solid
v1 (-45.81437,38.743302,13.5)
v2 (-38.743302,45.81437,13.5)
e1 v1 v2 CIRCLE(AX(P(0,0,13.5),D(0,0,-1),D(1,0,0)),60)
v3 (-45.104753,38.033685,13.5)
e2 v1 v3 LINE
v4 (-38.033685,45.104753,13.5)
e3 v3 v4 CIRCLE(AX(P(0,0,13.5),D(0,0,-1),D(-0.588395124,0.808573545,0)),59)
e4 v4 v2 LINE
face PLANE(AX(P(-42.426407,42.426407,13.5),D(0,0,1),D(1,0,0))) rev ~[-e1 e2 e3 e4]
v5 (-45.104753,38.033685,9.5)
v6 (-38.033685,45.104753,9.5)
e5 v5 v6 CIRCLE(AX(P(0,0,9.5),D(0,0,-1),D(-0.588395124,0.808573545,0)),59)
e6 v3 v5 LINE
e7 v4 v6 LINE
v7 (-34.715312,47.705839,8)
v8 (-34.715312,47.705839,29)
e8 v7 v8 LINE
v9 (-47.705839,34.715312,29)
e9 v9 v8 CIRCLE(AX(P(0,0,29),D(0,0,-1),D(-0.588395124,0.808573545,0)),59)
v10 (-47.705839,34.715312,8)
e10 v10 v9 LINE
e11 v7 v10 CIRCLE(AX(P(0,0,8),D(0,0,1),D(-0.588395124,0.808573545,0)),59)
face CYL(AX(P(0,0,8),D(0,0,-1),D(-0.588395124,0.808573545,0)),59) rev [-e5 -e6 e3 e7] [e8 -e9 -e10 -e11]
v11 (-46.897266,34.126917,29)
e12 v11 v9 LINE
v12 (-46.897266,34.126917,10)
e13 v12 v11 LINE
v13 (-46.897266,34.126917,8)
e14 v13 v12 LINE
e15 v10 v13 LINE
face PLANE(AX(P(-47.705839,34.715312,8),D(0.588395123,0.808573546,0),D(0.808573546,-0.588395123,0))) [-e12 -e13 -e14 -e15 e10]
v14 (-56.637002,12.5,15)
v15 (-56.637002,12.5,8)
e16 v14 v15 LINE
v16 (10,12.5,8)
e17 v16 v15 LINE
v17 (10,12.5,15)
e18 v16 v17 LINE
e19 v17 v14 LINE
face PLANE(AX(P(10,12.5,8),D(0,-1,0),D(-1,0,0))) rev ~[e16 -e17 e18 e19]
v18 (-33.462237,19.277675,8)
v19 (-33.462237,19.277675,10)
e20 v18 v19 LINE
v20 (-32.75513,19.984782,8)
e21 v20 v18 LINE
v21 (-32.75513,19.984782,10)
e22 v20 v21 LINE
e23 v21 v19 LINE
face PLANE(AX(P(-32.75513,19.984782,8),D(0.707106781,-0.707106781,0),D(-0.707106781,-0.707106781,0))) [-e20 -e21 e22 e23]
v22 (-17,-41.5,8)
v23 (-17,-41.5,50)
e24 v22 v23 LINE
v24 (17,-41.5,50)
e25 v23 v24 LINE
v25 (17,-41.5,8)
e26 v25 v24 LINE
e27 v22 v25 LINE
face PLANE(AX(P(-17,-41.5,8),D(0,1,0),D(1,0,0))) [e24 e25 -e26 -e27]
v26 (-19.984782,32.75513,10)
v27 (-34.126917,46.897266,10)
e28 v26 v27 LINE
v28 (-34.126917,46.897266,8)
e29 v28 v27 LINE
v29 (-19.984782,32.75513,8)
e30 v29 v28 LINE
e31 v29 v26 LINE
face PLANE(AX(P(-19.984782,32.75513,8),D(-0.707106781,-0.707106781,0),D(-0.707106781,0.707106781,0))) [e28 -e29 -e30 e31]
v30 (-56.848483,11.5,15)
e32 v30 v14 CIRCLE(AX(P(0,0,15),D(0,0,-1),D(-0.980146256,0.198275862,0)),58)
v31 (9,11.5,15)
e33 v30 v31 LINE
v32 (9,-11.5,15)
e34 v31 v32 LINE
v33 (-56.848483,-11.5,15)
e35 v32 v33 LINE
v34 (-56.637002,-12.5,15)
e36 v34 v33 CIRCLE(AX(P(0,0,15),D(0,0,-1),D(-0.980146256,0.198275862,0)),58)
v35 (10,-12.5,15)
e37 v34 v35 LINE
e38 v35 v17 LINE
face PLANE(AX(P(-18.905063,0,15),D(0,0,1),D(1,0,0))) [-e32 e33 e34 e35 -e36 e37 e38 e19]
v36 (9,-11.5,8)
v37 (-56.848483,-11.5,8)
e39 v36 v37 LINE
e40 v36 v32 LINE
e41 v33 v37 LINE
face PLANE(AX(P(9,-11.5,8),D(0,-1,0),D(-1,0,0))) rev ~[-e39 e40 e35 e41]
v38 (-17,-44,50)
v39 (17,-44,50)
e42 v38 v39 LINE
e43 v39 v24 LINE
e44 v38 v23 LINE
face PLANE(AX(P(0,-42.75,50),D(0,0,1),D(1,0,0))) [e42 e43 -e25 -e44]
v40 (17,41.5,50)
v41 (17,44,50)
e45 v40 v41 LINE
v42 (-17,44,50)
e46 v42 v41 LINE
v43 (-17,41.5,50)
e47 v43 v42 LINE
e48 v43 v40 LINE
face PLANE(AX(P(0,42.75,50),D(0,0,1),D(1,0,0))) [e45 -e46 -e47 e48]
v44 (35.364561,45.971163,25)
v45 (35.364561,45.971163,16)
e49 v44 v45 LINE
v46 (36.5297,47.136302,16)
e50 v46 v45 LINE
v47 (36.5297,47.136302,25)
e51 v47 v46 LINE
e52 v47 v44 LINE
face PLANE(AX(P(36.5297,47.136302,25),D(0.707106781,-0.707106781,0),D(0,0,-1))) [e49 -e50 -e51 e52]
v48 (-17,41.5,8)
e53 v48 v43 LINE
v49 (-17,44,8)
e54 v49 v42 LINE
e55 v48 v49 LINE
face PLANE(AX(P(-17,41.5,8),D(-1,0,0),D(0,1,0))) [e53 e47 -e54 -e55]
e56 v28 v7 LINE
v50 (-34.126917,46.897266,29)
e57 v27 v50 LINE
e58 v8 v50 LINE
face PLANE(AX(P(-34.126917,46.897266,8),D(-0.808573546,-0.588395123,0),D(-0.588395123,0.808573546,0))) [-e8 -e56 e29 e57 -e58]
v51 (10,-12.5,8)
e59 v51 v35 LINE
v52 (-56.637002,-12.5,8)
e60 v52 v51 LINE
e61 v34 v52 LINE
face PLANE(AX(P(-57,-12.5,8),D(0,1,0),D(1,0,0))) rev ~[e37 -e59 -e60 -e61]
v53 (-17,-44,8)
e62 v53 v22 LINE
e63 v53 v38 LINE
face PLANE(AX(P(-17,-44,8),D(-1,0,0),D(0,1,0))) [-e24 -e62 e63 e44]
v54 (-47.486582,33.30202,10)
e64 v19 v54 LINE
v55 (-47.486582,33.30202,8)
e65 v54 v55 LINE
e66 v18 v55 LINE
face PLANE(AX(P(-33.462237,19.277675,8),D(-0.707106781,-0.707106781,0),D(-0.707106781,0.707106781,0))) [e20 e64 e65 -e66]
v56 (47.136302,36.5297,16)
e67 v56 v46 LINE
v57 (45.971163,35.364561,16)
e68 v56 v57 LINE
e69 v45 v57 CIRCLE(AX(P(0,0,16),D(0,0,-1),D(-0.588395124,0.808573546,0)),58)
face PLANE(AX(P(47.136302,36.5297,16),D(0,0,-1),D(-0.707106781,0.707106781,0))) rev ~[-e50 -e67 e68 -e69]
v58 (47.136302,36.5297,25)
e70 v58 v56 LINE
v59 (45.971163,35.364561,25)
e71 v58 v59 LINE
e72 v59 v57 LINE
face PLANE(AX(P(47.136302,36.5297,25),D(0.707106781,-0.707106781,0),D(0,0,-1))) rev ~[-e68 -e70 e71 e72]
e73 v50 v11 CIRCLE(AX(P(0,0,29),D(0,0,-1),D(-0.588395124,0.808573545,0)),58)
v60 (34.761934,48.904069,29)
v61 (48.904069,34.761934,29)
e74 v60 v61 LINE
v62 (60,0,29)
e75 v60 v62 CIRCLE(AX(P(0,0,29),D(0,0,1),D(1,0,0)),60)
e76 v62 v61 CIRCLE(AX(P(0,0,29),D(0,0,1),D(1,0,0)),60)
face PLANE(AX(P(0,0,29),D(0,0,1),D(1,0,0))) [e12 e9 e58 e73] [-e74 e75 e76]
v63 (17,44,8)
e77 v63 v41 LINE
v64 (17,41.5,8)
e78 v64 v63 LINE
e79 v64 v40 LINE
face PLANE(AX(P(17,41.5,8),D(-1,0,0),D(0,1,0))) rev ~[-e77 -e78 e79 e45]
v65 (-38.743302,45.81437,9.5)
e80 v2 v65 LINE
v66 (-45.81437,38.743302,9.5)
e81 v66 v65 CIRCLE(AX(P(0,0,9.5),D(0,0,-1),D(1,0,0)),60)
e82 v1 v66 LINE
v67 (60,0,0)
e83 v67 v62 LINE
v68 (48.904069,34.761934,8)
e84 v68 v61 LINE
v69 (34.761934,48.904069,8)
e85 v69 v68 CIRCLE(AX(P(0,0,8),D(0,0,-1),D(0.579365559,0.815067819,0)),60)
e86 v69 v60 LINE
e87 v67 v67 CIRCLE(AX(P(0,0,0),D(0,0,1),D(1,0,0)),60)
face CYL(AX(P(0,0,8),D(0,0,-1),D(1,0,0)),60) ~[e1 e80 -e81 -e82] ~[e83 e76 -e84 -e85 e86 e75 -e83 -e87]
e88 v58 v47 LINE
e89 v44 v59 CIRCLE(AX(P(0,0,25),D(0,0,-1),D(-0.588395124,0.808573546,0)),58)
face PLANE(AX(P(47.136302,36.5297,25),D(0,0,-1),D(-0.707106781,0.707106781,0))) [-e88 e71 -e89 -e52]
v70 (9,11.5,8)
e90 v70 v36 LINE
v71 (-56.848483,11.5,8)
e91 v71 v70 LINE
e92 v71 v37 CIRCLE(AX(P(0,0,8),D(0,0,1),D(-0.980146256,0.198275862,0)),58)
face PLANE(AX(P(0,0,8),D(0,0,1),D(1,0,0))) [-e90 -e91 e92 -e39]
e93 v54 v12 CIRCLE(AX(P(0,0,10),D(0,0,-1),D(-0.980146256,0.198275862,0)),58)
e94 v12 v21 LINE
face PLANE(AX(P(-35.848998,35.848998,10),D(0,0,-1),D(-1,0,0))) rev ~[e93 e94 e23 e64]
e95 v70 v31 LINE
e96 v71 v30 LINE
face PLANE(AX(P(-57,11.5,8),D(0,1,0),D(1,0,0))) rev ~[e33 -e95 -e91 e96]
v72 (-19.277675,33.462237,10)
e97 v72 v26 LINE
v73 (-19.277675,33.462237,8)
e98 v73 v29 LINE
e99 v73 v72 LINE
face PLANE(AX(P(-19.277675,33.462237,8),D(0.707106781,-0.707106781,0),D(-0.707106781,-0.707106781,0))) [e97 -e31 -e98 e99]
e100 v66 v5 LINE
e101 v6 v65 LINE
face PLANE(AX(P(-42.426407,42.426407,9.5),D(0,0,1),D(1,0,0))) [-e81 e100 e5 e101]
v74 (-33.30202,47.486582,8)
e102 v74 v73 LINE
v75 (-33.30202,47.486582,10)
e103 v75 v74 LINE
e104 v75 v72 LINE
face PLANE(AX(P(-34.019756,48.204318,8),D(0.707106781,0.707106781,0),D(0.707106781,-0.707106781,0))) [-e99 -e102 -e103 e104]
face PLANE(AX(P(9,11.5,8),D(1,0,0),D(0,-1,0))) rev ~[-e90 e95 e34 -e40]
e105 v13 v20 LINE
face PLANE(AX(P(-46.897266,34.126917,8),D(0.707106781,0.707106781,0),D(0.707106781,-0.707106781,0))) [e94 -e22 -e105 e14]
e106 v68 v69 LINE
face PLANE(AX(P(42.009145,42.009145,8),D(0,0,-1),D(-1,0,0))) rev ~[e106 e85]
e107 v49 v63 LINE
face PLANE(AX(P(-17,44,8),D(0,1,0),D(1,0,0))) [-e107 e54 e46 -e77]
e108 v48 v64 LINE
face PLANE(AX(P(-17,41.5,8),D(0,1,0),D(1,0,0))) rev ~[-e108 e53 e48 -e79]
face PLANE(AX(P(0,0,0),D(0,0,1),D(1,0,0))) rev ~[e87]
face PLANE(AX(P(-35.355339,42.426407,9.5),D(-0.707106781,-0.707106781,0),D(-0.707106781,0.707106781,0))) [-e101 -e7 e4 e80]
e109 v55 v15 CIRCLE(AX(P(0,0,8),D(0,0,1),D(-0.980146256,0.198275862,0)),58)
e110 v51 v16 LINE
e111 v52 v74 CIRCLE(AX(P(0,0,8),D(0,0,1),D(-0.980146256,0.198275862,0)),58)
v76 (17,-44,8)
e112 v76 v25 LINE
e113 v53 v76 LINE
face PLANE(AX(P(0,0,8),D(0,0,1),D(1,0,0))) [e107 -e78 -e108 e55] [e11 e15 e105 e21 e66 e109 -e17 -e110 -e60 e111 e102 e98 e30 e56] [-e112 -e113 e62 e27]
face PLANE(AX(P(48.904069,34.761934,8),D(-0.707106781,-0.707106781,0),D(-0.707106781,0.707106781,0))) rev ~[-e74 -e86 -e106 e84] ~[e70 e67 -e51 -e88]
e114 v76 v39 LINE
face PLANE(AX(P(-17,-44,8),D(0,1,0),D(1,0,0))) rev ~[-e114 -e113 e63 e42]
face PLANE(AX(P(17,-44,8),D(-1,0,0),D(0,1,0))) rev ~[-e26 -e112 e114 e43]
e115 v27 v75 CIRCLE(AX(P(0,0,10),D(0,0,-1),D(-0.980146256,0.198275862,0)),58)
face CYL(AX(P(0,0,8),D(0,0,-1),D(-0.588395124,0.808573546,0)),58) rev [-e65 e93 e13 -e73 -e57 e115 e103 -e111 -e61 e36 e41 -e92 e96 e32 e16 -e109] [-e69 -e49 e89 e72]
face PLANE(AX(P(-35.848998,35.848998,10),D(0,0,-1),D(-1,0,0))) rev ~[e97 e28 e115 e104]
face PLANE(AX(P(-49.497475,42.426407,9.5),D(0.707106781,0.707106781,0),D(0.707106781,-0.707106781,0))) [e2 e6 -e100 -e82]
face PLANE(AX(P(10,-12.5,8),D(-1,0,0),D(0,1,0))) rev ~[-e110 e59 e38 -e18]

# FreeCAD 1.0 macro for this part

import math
import FreeCAD as App
import Part
import Sketcher
Q = App.Units.Quantity

doc = App.newDocument("Part")
body = doc.addObject("PartDesign::Body", "Body")

sketch1 = body.newObject("Sketcher::SketchObject", "Sketch")
sketch1.AttachmentSupport = (doc.getObject("XY_Plane"), [""])
sketch1.MapMode = "FlatFace"
sketch1.addGeometry(Part.Circle(App.Vector(0, 0, 0), App.Vector(0, 0, 1), 60), False)
sketch1.addConstraint([
    Sketcher.Constraint("Coincident", 0, 3, -1, 1),
    Sketcher.Constraint("Diameter", 0, Q("120 mm")),
])
pad1 = body.newObject("PartDesign::Pad", "Pad")
pad1.Profile = sketch1
pad1.Length = 8

sketch2 = body.newObject("Sketcher::SketchObject", "Sketch001")
sketch2.AttachmentSupport = (doc.getObject("XY_Plane"), [""])
sketch2.MapMode = "FlatFace"
sketch2.AttachmentOffset = App.Placement(App.Vector(0, 0, 8), App.Rotation())
sketch2.addGeometry([
    Part.LineSegment(App.Vector(9, 11.5, 0), App.Vector(9, -11.5, 0)),
    Part.LineSegment(App.Vector(9, -11.5, 0), App.Vector(-57, -11.5, 0)),
    Part.LineSegment(App.Vector(-57, -11.5, 0), App.Vector(-57, -12.5, 0)),
    Part.LineSegment(App.Vector(-57, -12.5, 0), App.Vector(10, -12.5, 0)),
    Part.LineSegment(App.Vector(10, -12.5, 0), App.Vector(10, 12.5, 0)),
    Part.LineSegment(App.Vector(10, 12.5, 0), App.Vector(-57, 12.5, 0)),
    Part.LineSegment(App.Vector(-57, 12.5, 0), App.Vector(-57, 11.5, 0)),
    Part.LineSegment(App.Vector(-57, 11.5, 0), App.Vector(9, 11.5, 0)),
], False)
sketch2.addConstraint([
    Sketcher.Constraint("Coincident", 0, 2, 1, 1),
    Sketcher.Constraint("Coincident", 1, 2, 2, 1),
    Sketcher.Constraint("Coincident", 2, 2, 3, 1),
    Sketcher.Constraint("Coincident", 3, 2, 4, 1),
    Sketcher.Constraint("Coincident", 4, 2, 5, 1),
    Sketcher.Constraint("Coincident", 5, 2, 6, 1),
    Sketcher.Constraint("Coincident", 6, 2, 7, 1),
    Sketcher.Constraint("Coincident", 7, 2, 0, 1),
    Sketcher.Constraint("Vertical", 0),
    Sketcher.Constraint("Horizontal", 1),
    Sketcher.Constraint("Vertical", 2),
    Sketcher.Constraint("Horizontal", 3),
    Sketcher.Constraint("Vertical", 4),
    Sketcher.Constraint("Horizontal", 5),
    Sketcher.Constraint("Vertical", 6),
    Sketcher.Constraint("Horizontal", 7),
    Sketcher.Constraint("Symmetric", 2, 2, 5, 2, -1),
    Sketcher.Constraint("Equal", 2, 6),
    Sketcher.Constraint("DistanceX", 1, 2, 1, 1, Q("66 mm")),
    Sketcher.Constraint("DistanceX", 3, 1, 3, 2, Q("67 mm")),
    Sketcher.Constraint("DistanceY", 0, 2, 0, 1, Q("23 mm")),
    Sketcher.Constraint("DistanceY", 2, 2, 2, 1, Q("1 mm")),
    Sketcher.Constraint("DistanceX", -1, 1, 0, 2, Q("9 mm")),
])
pad2 = body.newObject("PartDesign::Pad", "Pad001")
pad2.Profile = sketch2
pad2.Length = 7

sketch3 = body.newObject("Sketcher::SketchObject", "Sketch002")
sketch3.AttachmentSupport = (doc.getObject("XY_Plane"), [""])
sketch3.MapMode = "FlatFace"
sketch3.AttachmentOffset = App.Placement(App.Vector(0, 0, 8), App.Rotation())
sketch3.addGeometry([
    Part.Circle(App.Vector(0, 0, 0), App.Vector(0, 0, 1), 60),
    Part.Circle(App.Vector(0, 0, 0), App.Vector(0, 0, 1), 58),
], False)
sketch3.addConstraint([
    Sketcher.Constraint("Coincident", 0, 3, -1, 1),
    Sketcher.Constraint("Coincident", 1, 3, -1, 1),
    Sketcher.Constraint("Diameter", 0, Q("120 mm")),
    Sketcher.Constraint("Diameter", 1, Q("116 mm")),
])
pad3 = body.newObject("PartDesign::Pad", "Pad002")
pad3.Profile = sketch3
pad3.Length = 21

sketch4 = body.newObject("Sketcher::SketchObject", "Sketch003")
sketch4.AttachmentSupport = (doc.getObject("XY_Plane"), [""])
sketch4.MapMode = "FlatFace"
sketch4.AttachmentOffset = App.Placement(App.Vector(0, 0, 8), App.Rotation())
sketch4.addGeometry([
    Part.LineSegment(App.Vector(-34.126917, 46.897266, 0), App.Vector(-19.984782, 32.75513, 0)),
    Part.LineSegment(App.Vector(-19.984782, 32.75513, 0), App.Vector(-19.277675, 33.462237, 0)),
    Part.LineSegment(App.Vector(-19.277675, 33.462237, 0), App.Vector(-34.019756, 48.204318, 0)),
    Part.ArcOfCircle(Part.Circle(App.Vector(0, 0, 0), App.Vector(0, 0, 1), 59), math.radians(125.212181), math.radians(144.787819)),
    Part.LineSegment(App.Vector(-48.204318, 34.019756, 0), App.Vector(-33.462237, 19.277675, 0)),
    Part.LineSegment(App.Vector(-33.462237, 19.277675, 0), App.Vector(-32.75513, 19.984782, 0)),
    Part.LineSegment(App.Vector(-32.75513, 19.984782, 0), App.Vector(-46.897266, 34.126917, 0)),
    Part.ArcOfCircle(Part.Circle(App.Vector(0, 0, 0), App.Vector(0, 0, 1), 58), math.radians(126.043204), math.radians(143.956796)),
], False)
sketch4.addConstraint([
    Sketcher.Constraint("Coincident", 0, 2, 1, 1),
    Sketcher.Constraint("Coincident", 1, 2, 2, 1),
    Sketcher.Constraint("Coincident", 2, 2, 3, 1),
    Sketcher.Constraint("Coincident", 3, 2, 4, 1),
    Sketcher.Constraint("Coincident", 4, 2, 5, 1),
    Sketcher.Constraint("Coincident", 5, 2, 6, 1),
    Sketcher.Constraint("Coincident", 6, 2, 7, 2),
    Sketcher.Constraint("Coincident", 7, 1, 0, 1),
    Sketcher.Constraint("Coincident", 3, 3, -1, 1),
    Sketcher.Constraint("Coincident", 7, 3, -1, 1),
    Sketcher.Constraint("Perpendicular", 0, 1),
    Sketcher.Constraint("Perpendicular", 1, 2),
    Sketcher.Constraint("Parallel", 2, 4),
    Sketcher.Constraint("Perpendicular", 4, 5),
    Sketcher.Constraint("Perpendicular", 5, 6),
    Sketcher.Constraint("Equal", 2, 4),
    Sketcher.Constraint("Equal", 1, 5),
    Sketcher.Constraint("Equal", 0, 6),
    Sketcher.Constraint("Radius", 3, Q("59 mm")),
    Sketcher.Constraint("Radius", 7, Q("58 mm")),
    Sketcher.Constraint("Angle", 0, Q("-45 deg")),
    Sketcher.Constraint("Distance", 0, Q("20 mm")),
    Sketcher.Constraint("Distance", 1, Q("1 mm")),
    Sketcher.Constraint("DistanceY", 6, 2, 2, 2, Q("14.0774 mm")),
])
pad4 = body.newObject("PartDesign::Pad", "Pad003")
pad4.Profile = sketch4
pad4.Length = 2

sketch5 = body.newObject("Sketcher::SketchObject", "Sketch004")
sketch5.AttachmentSupport = (doc.getObject("XY_Plane"), [""])
sketch5.MapMode = "FlatFace"
sketch5.AttachmentOffset = App.Placement(App.Vector(0, 0, 8), App.Rotation())
sketch5.addGeometry([
    Part.LineSegment(App.Vector(-47.705839, 34.715312, 0), App.Vector(-46.897266, 34.126917, 0)),
    Part.ArcOfCircle(Part.Circle(App.Vector(0, 0, 0), App.Vector(0, 0, 1), 58), math.radians(126.043204), math.radians(143.956796)),
    Part.LineSegment(App.Vector(-34.126917, 46.897266, 0), App.Vector(-34.715312, 47.705839, 0)),
    Part.ArcOfCircle(Part.Circle(App.Vector(0, 0, 0), App.Vector(0, 0, 1), 59), math.radians(126.043204), math.radians(143.956796)),
], False)
sketch5.addConstraint([
    Sketcher.Constraint("Coincident", 0, 2, 1, 2),
    Sketcher.Constraint("Coincident", 1, 1, 2, 1),
    Sketcher.Constraint("Coincident", 2, 2, 3, 1),
    Sketcher.Constraint("Coincident", 3, 2, 0, 1),
    Sketcher.Constraint("Coincident", 1, 3, -1, 1),
    Sketcher.Constraint("Coincident", 3, 3, -1, 1),
    Sketcher.Constraint("Radius", 1, Q("58 mm")),
    Sketcher.Constraint("Radius", 3, Q("59 mm")),
    Sketcher.Constraint("DistanceY", -1, 1, 2, 2, Q("47.705839 mm")),
    Sketcher.Constraint("DistanceX", 3, 2, -1, 1, Q("47.705839 mm")),
    Sketcher.Constraint("DistanceX", 0, 2, 1, 1, Q("12.770348 mm")),
    Sketcher.Constraint("DistanceY", 0, 2, 1, 1, Q("12.770348 mm")),
])
pocket1 = body.newObject("PartDesign::Pocket", "Pocket")
pocket1.Profile = sketch5
pocket1.Type = "ThroughAll"
pocket1.Reversed = True

sketch6 = body.newObject("Sketcher::SketchObject", "Sketch005")
sketch6.AttachmentSupport = (doc.getObject("XY_Plane"), [""])
sketch6.MapMode = "FlatFace"
sketch6.AttachmentOffset = App.Placement(App.Vector(0, 0, 9.5), App.Rotation())
sketch6.addGeometry([
    Part.LineSegment(App.Vector(-35.355339, 42.426407, 0), App.Vector(-42.426407, 49.497475, 0)),
    Part.LineSegment(App.Vector(-42.426407, 49.497475, 0), App.Vector(-49.497475, 42.426407, 0)),
    Part.LineSegment(App.Vector(-49.497475, 42.426407, 0), App.Vector(-42.426407, 35.355339, 0)),
    Part.LineSegment(App.Vector(-42.426407, 35.355339, 0), App.Vector(-35.355339, 42.426407, 0)),
], False)
sketch6.addConstraint([
    Sketcher.Constraint("Coincident", 0, 2, 1, 1),
    Sketcher.Constraint("Coincident", 1, 2, 2, 1),
    Sketcher.Constraint("Coincident", 2, 2, 3, 1),
    Sketcher.Constraint("Coincident", 3, 2, 0, 1),
    Sketcher.Constraint("Perpendicular", 0, 1),
    Sketcher.Constraint("Perpendicular", 1, 2),
    Sketcher.Constraint("Perpendicular", 2, 3),
    Sketcher.Constraint("Horizontal", 1, 2, 3, 2),
    Sketcher.Constraint("Vertical", 0, 2, 2, 2),
    Sketcher.Constraint("Distance", 0, Q("10 mm")),
    Sketcher.Constraint("DistanceY", -1, 1, 2, 2, Q("35.355339 mm")),
    Sketcher.Constraint("DistanceX", 3, 2, -1, 1, Q("35.355339 mm")),
])
pocket2 = body.newObject("PartDesign::Pocket", "Pocket001")
pocket2.Profile = sketch6
pocket2.Length = 4
pocket2.Reversed = True

sketch7 = body.newObject("Sketcher::SketchObject", "Sketch006")
sketch7.AttachmentSupport = (doc.getObject("XY_Plane"), [""])
sketch7.MapMode = "FlatFace"
sketch7.AttachmentOffset = App.Placement(App.Vector(0, 0, 8), App.Rotation())
sketch7.addGeometry([
    Part.LineSegment(App.Vector(34.761934, 48.904069, 0), App.Vector(48.904069, 34.761934, 0)),
    Part.ArcOfCircle(Part.Circle(App.Vector(0, 0, 0), App.Vector(0, 0, 1), 60), math.radians(35.405932), math.radians(54.594068)),
], False)
sketch7.addConstraint([
    Sketcher.Constraint("Coincident", 0, 1, 1, 2),
    Sketcher.Constraint("Coincident", 1, 1, 0, 2),
    Sketcher.Constraint("Coincident", 1, 3, -1, 1),
    Sketcher.Constraint("Radius", 1, Q("60 mm")),
    Sketcher.Constraint("Angle", 0, Q("-45 deg")),
    Sketcher.Constraint("Distance", 0, Q("20 mm")),
])
pocket3 = body.newObject("PartDesign::Pocket", "Pocket002")
pocket3.Profile = sketch7
pocket3.Type = "ThroughAll"
pocket3.Reversed = True

sketch8 = body.newObject("Sketcher::SketchObject", "Sketch007")
sketch8.Placement = App.Placement(App.Vector(41.833001, 41.833001, 0), App.Rotation(App.Vector(0, 0, -1), App.Vector(-0.707106781, 0.707106781, 0), App.Vector(0.707106781, 0.707106781, 0), "ZXY"))
sketch8.addGeometry([
    Part.LineSegment(App.Vector(-25, 7.5, 0), App.Vector(-25, -7.5, 0)),
    Part.LineSegment(App.Vector(-25, -7.5, 0), App.Vector(-16, -7.5, 0)),
    Part.LineSegment(App.Vector(-16, -7.5, 0), App.Vector(-16, 7.5, 0)),
    Part.LineSegment(App.Vector(-16, 7.5, 0), App.Vector(-25, 7.5, 0)),
], False)
sketch8.addConstraint([
    Sketcher.Constraint("Coincident", 0, 2, 1, 1),
    Sketcher.Constraint("Coincident", 1, 2, 2, 1),
    Sketcher.Constraint("Coincident", 2, 2, 3, 1),
    Sketcher.Constraint("Coincident", 3, 2, 0, 1),
    Sketcher.Constraint("Vertical", 0),
    Sketcher.Constraint("Horizontal", 1),
    Sketcher.Constraint("Vertical", 2),
    Sketcher.Constraint("Horizontal", 3),
    Sketcher.Constraint("DistanceX", 1, 1, 1, 2, Q("9 mm")),
    Sketcher.Constraint("DistanceY", 0, 2, 0, 1, Q("15 mm")),
    Sketcher.Constraint("DistanceX", 0, 2, -1, 1, Q("25 mm")),
    Sketcher.Constraint("DistanceY", 0, 2, -1, 1, Q("7.5 mm")),
])
pocket4 = body.newObject("PartDesign::Pocket", "Pocket003")
pocket4.Profile = sketch8
pocket4.Length = 4

sketch9 = body.newObject("Sketcher::SketchObject", "Sketch008")
sketch9.AttachmentSupport = (doc.getObject("XY_Plane"), [""])
sketch9.MapMode = "FlatFace"
sketch9.AttachmentOffset = App.Placement(App.Vector(0, 0, 8), App.Rotation())
sketch9.addGeometry([
    Part.LineSegment(App.Vector(-17, 44, 0), App.Vector(-17, 41.5, 0)),
    Part.LineSegment(App.Vector(-17, 41.5, 0), App.Vector(17, 41.5, 0)),
    Part.LineSegment(App.Vector(17, 41.5, 0), App.Vector(17, 44, 0)),
    Part.LineSegment(App.Vector(17, 44, 0), App.Vector(-17, 44, 0)),
    Part.LineSegment(App.Vector(-17, -41.5, 0), App.Vector(-17, -44, 0)),
    Part.LineSegment(App.Vector(-17, -44, 0), App.Vector(17, -44, 0)),
    Part.LineSegment(App.Vector(17, -44, 0), App.Vector(17, -41.5, 0)),
    Part.LineSegment(App.Vector(17, -41.5, 0), App.Vector(-17, -41.5, 0)),
], False)
sketch9.addConstraint([
    Sketcher.Constraint("Coincident", 0, 2, 1, 1),
    Sketcher.Constraint("Coincident", 1, 2, 2, 1),
    Sketcher.Constraint("Coincident", 2, 2, 3, 1),
    Sketcher.Constraint("Coincident", 3, 2, 0, 1),
    Sketcher.Constraint("Coincident", 4, 2, 5, 1),
    Sketcher.Constraint("Coincident", 5, 2, 6, 1),
    Sketcher.Constraint("Coincident", 6, 2, 7, 1),
    Sketcher.Constraint("Coincident", 7, 2, 4, 1),
    Sketcher.Constraint("Vertical", 0),
    Sketcher.Constraint("Horizontal", 1),
    Sketcher.Constraint("Vertical", 2),
    Sketcher.Constraint("Horizontal", 3),
    Sketcher.Constraint("Vertical", 4),
    Sketcher.Constraint("Horizontal", 5),
    Sketcher.Constraint("Vertical", 6),
    Sketcher.Constraint("Horizontal", 7),
    Sketcher.Constraint("Symmetric", 2, 2, 4, 2, -1, 1),
    Sketcher.Constraint("Symmetric", 0, 2, 6, 2, -1, 1),
    Sketcher.Constraint("Vertical", 3, 2, 4, 2),
    Sketcher.Constraint("DistanceX", 1, 1, 1, 2, Q("34 mm")),
    Sketcher.Constraint("DistanceY", 0, 2, 0, 1, Q("2.5 mm")),
    Sketcher.Constraint("DistanceY", -1, 1, 2, 2, Q("44 mm")),
])
pad5 = body.newObject("PartDesign::Pad", "Pad004")
pad5.Profile = sketch9
pad5.Length = 42

doc.recompute()
